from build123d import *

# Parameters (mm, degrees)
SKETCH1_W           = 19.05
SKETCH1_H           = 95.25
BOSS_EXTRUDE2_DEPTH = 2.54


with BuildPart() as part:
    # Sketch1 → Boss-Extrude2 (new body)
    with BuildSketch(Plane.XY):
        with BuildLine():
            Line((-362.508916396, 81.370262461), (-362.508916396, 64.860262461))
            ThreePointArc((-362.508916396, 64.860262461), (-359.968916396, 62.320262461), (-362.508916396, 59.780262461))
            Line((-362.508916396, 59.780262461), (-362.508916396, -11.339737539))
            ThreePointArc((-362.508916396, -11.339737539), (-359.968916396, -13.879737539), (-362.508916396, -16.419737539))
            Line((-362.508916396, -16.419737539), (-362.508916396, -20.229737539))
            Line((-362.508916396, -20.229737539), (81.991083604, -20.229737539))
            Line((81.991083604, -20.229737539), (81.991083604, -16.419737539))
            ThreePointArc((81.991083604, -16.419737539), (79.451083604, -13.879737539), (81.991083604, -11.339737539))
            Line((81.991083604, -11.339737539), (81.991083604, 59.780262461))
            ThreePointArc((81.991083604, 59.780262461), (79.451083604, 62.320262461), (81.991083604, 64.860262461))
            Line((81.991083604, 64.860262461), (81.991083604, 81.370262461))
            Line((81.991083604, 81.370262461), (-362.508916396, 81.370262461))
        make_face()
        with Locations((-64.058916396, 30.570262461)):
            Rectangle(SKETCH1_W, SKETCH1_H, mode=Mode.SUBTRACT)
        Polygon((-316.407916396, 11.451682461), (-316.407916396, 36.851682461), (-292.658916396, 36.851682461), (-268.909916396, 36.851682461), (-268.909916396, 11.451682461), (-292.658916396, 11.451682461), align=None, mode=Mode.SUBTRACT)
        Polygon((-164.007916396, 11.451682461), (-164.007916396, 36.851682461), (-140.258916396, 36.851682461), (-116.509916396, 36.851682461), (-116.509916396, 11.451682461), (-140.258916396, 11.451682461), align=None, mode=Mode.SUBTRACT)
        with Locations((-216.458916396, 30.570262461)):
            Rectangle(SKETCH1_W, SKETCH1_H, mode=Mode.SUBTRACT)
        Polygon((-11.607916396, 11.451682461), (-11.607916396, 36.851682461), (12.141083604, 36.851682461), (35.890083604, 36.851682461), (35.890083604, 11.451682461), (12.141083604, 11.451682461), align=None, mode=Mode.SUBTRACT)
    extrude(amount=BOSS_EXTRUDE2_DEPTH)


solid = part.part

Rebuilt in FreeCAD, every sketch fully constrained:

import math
import FreeCAD as App
import Part
import Sketcher

V = App.Vector
Q = App.Units.Quantity

doc = App.newDocument("Part")
body = doc.addObject("PartDesign::Body", "Body")

sketch1 = body.newObject("Sketcher::SketchObject", "Sketch")
sketch1.AttachmentSupport = (doc.getObject("XY_Plane"), [""])
sketch1.MapMode = "FlatFace"
sketch1.addGeometry(Part.LineSegment(V(-362.5, 81.4, 0), V(-362.5, 64.9, 0)), False)
sketch1.addGeometry(Part.ArcOfCircle(Part.Circle(V(-362.5, 62.3, 0), V(0, 0, 1), 2.5), math.radians(-90), math.radians(90)), False)
sketch1.addGeometry(Part.LineSegment(V(-362.5, 59.8, 0), V(-362.5, -11.3, 0)), False)
sketch1.addGeometry(Part.ArcOfCircle(Part.Circle(V(-362.5, -13.9, 0), V(0, 0, 1), 2.5), math.radians(-90), math.radians(90)), False)
sketch1.addGeometry(Part.LineSegment(V(-362.5, -16.4, 0), V(-362.5, -20.2, 0)), False)
sketch1.addGeometry(Part.LineSegment(V(-362.5, -20.2, 0), V(82, -20.2, 0)), False)
sketch1.addGeometry(Part.LineSegment(V(82, -20.2, 0), V(82, -16.4, 0)), False)
sketch1.addGeometry(Part.ArcOfCircle(Part.Circle(V(82, -13.9, 0), V(0, 0, 1), 2.5), math.radians(90), math.radians(270)), False)
sketch1.addGeometry(Part.LineSegment(V(82, -11.3, 0), V(82, 59.8, 0)), False)
sketch1.addGeometry(Part.ArcOfCircle(Part.Circle(V(82, 62.3, 0), V(0, 0, 1), 2.5), math.radians(90), math.radians(270)), False)
sketch1.addGeometry(Part.LineSegment(V(82, 64.9, 0), V(82, 81.4, 0)), False)
sketch1.addGeometry(Part.LineSegment(V(82, 81.4, 0), V(-362.5, 81.4, 0)), False)
sketch1.addGeometry(Part.LineSegment(V(-268.9, 11.5, 0), V(-316.4, 11.5, 0)), False)
sketch1.addGeometry(Part.LineSegment(V(-316.4, 11.5, 0), V(-316.4, 36.9, 0)), False)
sketch1.addGeometry(Part.LineSegment(V(-316.4, 36.9, 0), V(-268.9, 36.9, 0)), False)
sketch1.addGeometry(Part.LineSegment(V(-268.9, 36.9, 0), V(-268.9, 11.5, 0)), False)
sketch1.addGeometry(Part.LineSegment(V(-116.5, 11.5, 0), V(-164, 11.5, 0)), False)
sketch1.addGeometry(Part.LineSegment(V(-164, 11.5, 0), V(-164, 36.9, 0)), False)
sketch1.addGeometry(Part.LineSegment(V(-164, 36.9, 0), V(-116.5, 36.9, 0)), False)
sketch1.addGeometry(Part.LineSegment(V(-116.5, 36.9, 0), V(-116.5, 11.5, 0)), False)
sketch1.addGeometry(Part.LineSegment(V(35.9, 11.5, 0), V(-11.6, 11.5, 0)), False)
sketch1.addGeometry(Part.LineSegment(V(-11.6, 11.5, 0), V(-11.6, 36.9, 0)), False)
sketch1.addGeometry(Part.LineSegment(V(-11.6, 36.9, 0), V(35.9, 36.9, 0)), False)
sketch1.addGeometry(Part.LineSegment(V(35.9, 36.9, 0), V(35.9, 11.5, 0)), False)
sketch1.addGeometry(Part.LineSegment(V(-206.9, -17.1, 0), V(-226, -17.1, 0)), False)
sketch1.addGeometry(Part.LineSegment(V(-226, -17.1, 0), V(-226, 78.2, 0)), False)
sketch1.addGeometry(Part.LineSegment(V(-226, 78.2, 0), V(-206.9, 78.2, 0)), False)
sketch1.addGeometry(Part.LineSegment(V(-206.9, 78.2, 0), V(-206.9, -17.1, 0)), False)
sketch1.addGeometry(Part.LineSegment(V(-54.5, -17.1, 0), V(-73.6, -17.1, 0)), False)
sketch1.addGeometry(Part.LineSegment(V(-73.6, -17.1, 0), V(-73.6, 78.2, 0)), False)
sketch1.addGeometry(Part.LineSegment(V(-73.6, 78.2, 0), V(-54.5, 78.2, 0)), False)
sketch1.addGeometry(Part.LineSegment(V(-54.5, 78.2, 0), V(-54.5, -17.1, 0)), False)
sketch1.addConstraint(Sketcher.Constraint("Coincident", 0, 2, 1, 2))
sketch1.addConstraint(Sketcher.Constraint("Coincident", 1, 1, 2, 1))
sketch1.addConstraint(Sketcher.Constraint("Coincident", 2, 2, 3, 2))
sketch1.addConstraint(Sketcher.Constraint("Coincident", 3, 1, 4, 1))
sketch1.addConstraint(Sketcher.Constraint("Coincident", 4, 2, 5, 1))
sketch1.addConstraint(Sketcher.Constraint("Coincident", 5, 2, 6, 1))
sketch1.addConstraint(Sketcher.Constraint("Coincident", 6, 2, 7, 2))
sketch1.addConstraint(Sketcher.Constraint("Coincident", 7, 1, 8, 1))
sketch1.addConstraint(Sketcher.Constraint("Coincident", 8, 2, 9, 2))
sketch1.addConstraint(Sketcher.Constraint("Coincident", 9, 1, 10, 1))
sketch1.addConstraint(Sketcher.Constraint("Coincident", 10, 2, 11, 1))
sketch1.addConstraint(Sketcher.Constraint("Coincident", 11, 2, 0, 1))
sketch1.addConstraint(Sketcher.Constraint("Coincident", 12, 2, 13, 1))
sketch1.addConstraint(Sketcher.Constraint("Coincident", 13, 2, 14, 1))
sketch1.addConstraint(Sketcher.Constraint("Coincident", 14, 2, 15, 1))
sketch1.addConstraint(Sketcher.Constraint("Coincident", 15, 2, 12, 1))
sketch1.addConstraint(Sketcher.Constraint("Coincident", 16, 2, 17, 1))
sketch1.addConstraint(Sketcher.Constraint("Coincident", 17, 2, 18, 1))
sketch1.addConstraint(Sketcher.Constraint("Coincident", 18, 2, 19, 1))
sketch1.addConstraint(Sketcher.Constraint("Coincident", 19, 2, 16, 1))
sketch1.addConstraint(Sketcher.Constraint("Coincident", 20, 2, 21, 1))
sketch1.addConstraint(Sketcher.Constraint("Coincident", 21, 2, 22, 1))
sketch1.addConstraint(Sketcher.Constraint("Coincident", 22, 2, 23, 1))
sketch1.addConstraint(Sketcher.Constraint("Coincident", 23, 2, 20, 1))
sketch1.addConstraint(Sketcher.Constraint("Coincident", 24, 2, 25, 1))
sketch1.addConstraint(Sketcher.Constraint("Coincident", 25, 2, 26, 1))
sketch1.addConstraint(Sketcher.Constraint("Coincident", 26, 2, 27, 1))
sketch1.addConstraint(Sketcher.Constraint("Coincident", 27, 2, 24, 1))
sketch1.addConstraint(Sketcher.Constraint("Coincident", 28, 2, 29, 1))
sketch1.addConstraint(Sketcher.Constraint("Coincident", 29, 2, 30, 1))
sketch1.addConstraint(Sketcher.Constraint("Coincident", 30, 2, 31, 1))
sketch1.addConstraint(Sketcher.Constraint("Coincident", 31, 2, 28, 1))
sketch1.addConstraint(Sketcher.Constraint("Vertical", 0))
sketch1.addConstraint(Sketcher.Constraint("Vertical", 2))
sketch1.addConstraint(Sketcher.Constraint("Vertical", 4))
sketch1.addConstraint(Sketcher.Constraint("Horizontal", 5))
sketch1.addConstraint(Sketcher.Constraint("Vertical", 6))
sketch1.addConstraint(Sketcher.Constraint("Vertical", 8))
sketch1.addConstraint(Sketcher.Constraint("Vertical", 10))
sketch1.addConstraint(Sketcher.Constraint("Horizontal", 11))
sketch1.addConstraint(Sketcher.Constraint("Horizontal", 12))
sketch1.addConstraint(Sketcher.Constraint("Vertical", 13))
sketch1.addConstraint(Sketcher.Constraint("Horizontal", 14))
sketch1.addConstraint(Sketcher.Constraint("Vertical", 15))
sketch1.addConstraint(Sketcher.Constraint("Horizontal", 16))
sketch1.addConstraint(Sketcher.Constraint("Vertical", 17))
sketch1.addConstraint(Sketcher.Constraint("Horizontal", 18))
sketch1.addConstraint(Sketcher.Constraint("Vertical", 19))
sketch1.addConstraint(Sketcher.Constraint("Horizontal", 20))
sketch1.addConstraint(Sketcher.Constraint("Vertical", 21))
sketch1.addConstraint(Sketcher.Constraint("Horizontal", 22))
sketch1.addConstraint(Sketcher.Constraint("Vertical", 23))
sketch1.addConstraint(Sketcher.Constraint("Horizontal", 24))
sketch1.addConstraint(Sketcher.Constraint("Vertical", 25))
sketch1.addConstraint(Sketcher.Constraint("Horizontal", 26))
sketch1.addConstraint(Sketcher.Constraint("Vertical", 27))
sketch1.addConstraint(Sketcher.Constraint("Horizontal", 28))
sketch1.addConstraint(Sketcher.Constraint("Vertical", 29))
sketch1.addConstraint(Sketcher.Constraint("Horizontal", 30))
sketch1.addConstraint(Sketcher.Constraint("Vertical", 31))
sketch1.addConstraint(Sketcher.Constraint("Equal", 1, 3))
sketch1.addConstraint(Sketcher.Constraint("Equal", 3, 7))
sketch1.addConstraint(Sketcher.Constraint("Equal", 7, 9))
sketch1.addConstraint(Sketcher.Constraint("Horizontal", 3, 3, 7, 3))
sketch1.addConstraint(Sketcher.Constraint("Horizontal", 1, 3, 9, 3))
sketch1.addConstraint(Sketcher.Constraint("Horizontal", 15, 2, 16, 2))
sketch1.addConstraint(Sketcher.Constraint("Horizontal", 14, 2, 17, 2))
sketch1.addConstraint(Sketcher.Constraint("Horizontal", 19, 2, 20, 2))
sketch1.addConstraint(Sketcher.Constraint("Horizontal", 18, 2, 21, 2))
sketch1.addConstraint(Sketcher.Constraint("Horizontal", 27, 2, 28, 2))
sketch1.addConstraint(Sketcher.Constraint("Horizontal", 26, 2, 29, 2))
sketch1.addConstraint(Sketcher.Constraint("Vertical", 1, 3, 3, 3))
sketch1.addConstraint(Sketcher.Constraint("Vertical", 7, 3, 9, 3))
sketch1.addConstraint(Sketcher.Constraint("Vertical", 3, 3, 0, 2))
sketch1.addConstraint(Sketcher.Constraint("Vertical", 0, 2, 1, 1))
sketch1.addConstraint(Sketcher.Constraint("Vertical", 2, 2, 3, 1))
sketch1.addConstraint(Sketcher.Constraint("Vertical", 9, 3, 5, 2))
sketch1.addConstraint(Sketcher.Constraint("Vertical", 6, 2, 7, 1))
sketch1.addConstraint(Sketcher.Constraint("Vertical", 8, 2, 9, 1))
sketch1.addConstraint(Sketcher.Constraint("Equal", 14, 16))
sketch1.addConstraint(Sketcher.Constraint("Equal", 18, 20))
sketch1.addConstraint(Sketcher.Constraint("Equal", 26, 28))
sketch1.addConstraint(Sketcher.Constraint("Radius", 1, Q("0.1 in")))
sketch1.addConstraint(Sketcher.Constraint("DistanceY", 13, 1, 13, 2, Q("1 in")))
sketch1.addConstraint(Sketcher.Constraint("DistanceX", 5, 1, 5, 2, Q("17.5 in")))
sketch1.addConstraint(Sketcher.Constraint("DistanceY", 2, 2, 2, 1, Q("2.8 in")))
sketch1.addConstraint(Sketcher.Constraint("DistanceX", 12, 2, 16, 2, Q("6 in")))
sketch1.addConstraint(Sketcher.Constraint("DistanceX", 12, 2, 12, 1, Q("1.87 in")))
sketch1.addConstraint(Sketcher.Constraint("DistanceX", 24, 2, 24, 1, Q("0.75 in")))
sketch1.addConstraint(Sketcher.Constraint("DistanceY", 0, 2, 0, 1, Q("0.65 in")))
sketch1.addConstraint(Sketcher.Constraint("DistanceY", 4, 2, 4, 1, Q("0.15 in")))
sketch1.addConstraint(Sketcher.Constraint("DistanceY", 25, 1, 25, 2, Q("3.75 in")))
sketch1.addConstraint(Sketcher.Constraint("DistanceX", 19, 2, 20, 2, Q("4.13 in")))
sketch1.addConstraint(Sketcher.Constraint("DistanceX", 15, 2, 24, 2, Q("1.69 in")))
sketch1.addConstraint(Sketcher.Constraint("DistanceX", 19, 2, 28, 2, Q("1.69 in")))
sketch1.addConstraint(Sketcher.Constraint("DistanceX", 2, 2, 12, 2, Q("1.815 in")))
sketch1.addConstraint(Sketcher.Constraint("DistanceY", 2, 2, 12, 2, Q("0.8973 in")))
sketch1.addConstraint(Sketcher.Constraint("DistanceY", 24, 2, 15, 2, Q("1.1223 in")))
sketch1.addConstraint(Sketcher.Constraint("DistanceX", 1, 3, -1, 1, Q("362.508916 mm")))
sketch1.addConstraint(Sketcher.Constraint("DistanceY", -1, 1, 1, 3, Q("62.320262 mm")))
pad1 = body.newObject("PartDesign::Pad", "Pad")
pad1.Profile = sketch1
pad1.Length = Q("0.1 in")

doc.recompute()
